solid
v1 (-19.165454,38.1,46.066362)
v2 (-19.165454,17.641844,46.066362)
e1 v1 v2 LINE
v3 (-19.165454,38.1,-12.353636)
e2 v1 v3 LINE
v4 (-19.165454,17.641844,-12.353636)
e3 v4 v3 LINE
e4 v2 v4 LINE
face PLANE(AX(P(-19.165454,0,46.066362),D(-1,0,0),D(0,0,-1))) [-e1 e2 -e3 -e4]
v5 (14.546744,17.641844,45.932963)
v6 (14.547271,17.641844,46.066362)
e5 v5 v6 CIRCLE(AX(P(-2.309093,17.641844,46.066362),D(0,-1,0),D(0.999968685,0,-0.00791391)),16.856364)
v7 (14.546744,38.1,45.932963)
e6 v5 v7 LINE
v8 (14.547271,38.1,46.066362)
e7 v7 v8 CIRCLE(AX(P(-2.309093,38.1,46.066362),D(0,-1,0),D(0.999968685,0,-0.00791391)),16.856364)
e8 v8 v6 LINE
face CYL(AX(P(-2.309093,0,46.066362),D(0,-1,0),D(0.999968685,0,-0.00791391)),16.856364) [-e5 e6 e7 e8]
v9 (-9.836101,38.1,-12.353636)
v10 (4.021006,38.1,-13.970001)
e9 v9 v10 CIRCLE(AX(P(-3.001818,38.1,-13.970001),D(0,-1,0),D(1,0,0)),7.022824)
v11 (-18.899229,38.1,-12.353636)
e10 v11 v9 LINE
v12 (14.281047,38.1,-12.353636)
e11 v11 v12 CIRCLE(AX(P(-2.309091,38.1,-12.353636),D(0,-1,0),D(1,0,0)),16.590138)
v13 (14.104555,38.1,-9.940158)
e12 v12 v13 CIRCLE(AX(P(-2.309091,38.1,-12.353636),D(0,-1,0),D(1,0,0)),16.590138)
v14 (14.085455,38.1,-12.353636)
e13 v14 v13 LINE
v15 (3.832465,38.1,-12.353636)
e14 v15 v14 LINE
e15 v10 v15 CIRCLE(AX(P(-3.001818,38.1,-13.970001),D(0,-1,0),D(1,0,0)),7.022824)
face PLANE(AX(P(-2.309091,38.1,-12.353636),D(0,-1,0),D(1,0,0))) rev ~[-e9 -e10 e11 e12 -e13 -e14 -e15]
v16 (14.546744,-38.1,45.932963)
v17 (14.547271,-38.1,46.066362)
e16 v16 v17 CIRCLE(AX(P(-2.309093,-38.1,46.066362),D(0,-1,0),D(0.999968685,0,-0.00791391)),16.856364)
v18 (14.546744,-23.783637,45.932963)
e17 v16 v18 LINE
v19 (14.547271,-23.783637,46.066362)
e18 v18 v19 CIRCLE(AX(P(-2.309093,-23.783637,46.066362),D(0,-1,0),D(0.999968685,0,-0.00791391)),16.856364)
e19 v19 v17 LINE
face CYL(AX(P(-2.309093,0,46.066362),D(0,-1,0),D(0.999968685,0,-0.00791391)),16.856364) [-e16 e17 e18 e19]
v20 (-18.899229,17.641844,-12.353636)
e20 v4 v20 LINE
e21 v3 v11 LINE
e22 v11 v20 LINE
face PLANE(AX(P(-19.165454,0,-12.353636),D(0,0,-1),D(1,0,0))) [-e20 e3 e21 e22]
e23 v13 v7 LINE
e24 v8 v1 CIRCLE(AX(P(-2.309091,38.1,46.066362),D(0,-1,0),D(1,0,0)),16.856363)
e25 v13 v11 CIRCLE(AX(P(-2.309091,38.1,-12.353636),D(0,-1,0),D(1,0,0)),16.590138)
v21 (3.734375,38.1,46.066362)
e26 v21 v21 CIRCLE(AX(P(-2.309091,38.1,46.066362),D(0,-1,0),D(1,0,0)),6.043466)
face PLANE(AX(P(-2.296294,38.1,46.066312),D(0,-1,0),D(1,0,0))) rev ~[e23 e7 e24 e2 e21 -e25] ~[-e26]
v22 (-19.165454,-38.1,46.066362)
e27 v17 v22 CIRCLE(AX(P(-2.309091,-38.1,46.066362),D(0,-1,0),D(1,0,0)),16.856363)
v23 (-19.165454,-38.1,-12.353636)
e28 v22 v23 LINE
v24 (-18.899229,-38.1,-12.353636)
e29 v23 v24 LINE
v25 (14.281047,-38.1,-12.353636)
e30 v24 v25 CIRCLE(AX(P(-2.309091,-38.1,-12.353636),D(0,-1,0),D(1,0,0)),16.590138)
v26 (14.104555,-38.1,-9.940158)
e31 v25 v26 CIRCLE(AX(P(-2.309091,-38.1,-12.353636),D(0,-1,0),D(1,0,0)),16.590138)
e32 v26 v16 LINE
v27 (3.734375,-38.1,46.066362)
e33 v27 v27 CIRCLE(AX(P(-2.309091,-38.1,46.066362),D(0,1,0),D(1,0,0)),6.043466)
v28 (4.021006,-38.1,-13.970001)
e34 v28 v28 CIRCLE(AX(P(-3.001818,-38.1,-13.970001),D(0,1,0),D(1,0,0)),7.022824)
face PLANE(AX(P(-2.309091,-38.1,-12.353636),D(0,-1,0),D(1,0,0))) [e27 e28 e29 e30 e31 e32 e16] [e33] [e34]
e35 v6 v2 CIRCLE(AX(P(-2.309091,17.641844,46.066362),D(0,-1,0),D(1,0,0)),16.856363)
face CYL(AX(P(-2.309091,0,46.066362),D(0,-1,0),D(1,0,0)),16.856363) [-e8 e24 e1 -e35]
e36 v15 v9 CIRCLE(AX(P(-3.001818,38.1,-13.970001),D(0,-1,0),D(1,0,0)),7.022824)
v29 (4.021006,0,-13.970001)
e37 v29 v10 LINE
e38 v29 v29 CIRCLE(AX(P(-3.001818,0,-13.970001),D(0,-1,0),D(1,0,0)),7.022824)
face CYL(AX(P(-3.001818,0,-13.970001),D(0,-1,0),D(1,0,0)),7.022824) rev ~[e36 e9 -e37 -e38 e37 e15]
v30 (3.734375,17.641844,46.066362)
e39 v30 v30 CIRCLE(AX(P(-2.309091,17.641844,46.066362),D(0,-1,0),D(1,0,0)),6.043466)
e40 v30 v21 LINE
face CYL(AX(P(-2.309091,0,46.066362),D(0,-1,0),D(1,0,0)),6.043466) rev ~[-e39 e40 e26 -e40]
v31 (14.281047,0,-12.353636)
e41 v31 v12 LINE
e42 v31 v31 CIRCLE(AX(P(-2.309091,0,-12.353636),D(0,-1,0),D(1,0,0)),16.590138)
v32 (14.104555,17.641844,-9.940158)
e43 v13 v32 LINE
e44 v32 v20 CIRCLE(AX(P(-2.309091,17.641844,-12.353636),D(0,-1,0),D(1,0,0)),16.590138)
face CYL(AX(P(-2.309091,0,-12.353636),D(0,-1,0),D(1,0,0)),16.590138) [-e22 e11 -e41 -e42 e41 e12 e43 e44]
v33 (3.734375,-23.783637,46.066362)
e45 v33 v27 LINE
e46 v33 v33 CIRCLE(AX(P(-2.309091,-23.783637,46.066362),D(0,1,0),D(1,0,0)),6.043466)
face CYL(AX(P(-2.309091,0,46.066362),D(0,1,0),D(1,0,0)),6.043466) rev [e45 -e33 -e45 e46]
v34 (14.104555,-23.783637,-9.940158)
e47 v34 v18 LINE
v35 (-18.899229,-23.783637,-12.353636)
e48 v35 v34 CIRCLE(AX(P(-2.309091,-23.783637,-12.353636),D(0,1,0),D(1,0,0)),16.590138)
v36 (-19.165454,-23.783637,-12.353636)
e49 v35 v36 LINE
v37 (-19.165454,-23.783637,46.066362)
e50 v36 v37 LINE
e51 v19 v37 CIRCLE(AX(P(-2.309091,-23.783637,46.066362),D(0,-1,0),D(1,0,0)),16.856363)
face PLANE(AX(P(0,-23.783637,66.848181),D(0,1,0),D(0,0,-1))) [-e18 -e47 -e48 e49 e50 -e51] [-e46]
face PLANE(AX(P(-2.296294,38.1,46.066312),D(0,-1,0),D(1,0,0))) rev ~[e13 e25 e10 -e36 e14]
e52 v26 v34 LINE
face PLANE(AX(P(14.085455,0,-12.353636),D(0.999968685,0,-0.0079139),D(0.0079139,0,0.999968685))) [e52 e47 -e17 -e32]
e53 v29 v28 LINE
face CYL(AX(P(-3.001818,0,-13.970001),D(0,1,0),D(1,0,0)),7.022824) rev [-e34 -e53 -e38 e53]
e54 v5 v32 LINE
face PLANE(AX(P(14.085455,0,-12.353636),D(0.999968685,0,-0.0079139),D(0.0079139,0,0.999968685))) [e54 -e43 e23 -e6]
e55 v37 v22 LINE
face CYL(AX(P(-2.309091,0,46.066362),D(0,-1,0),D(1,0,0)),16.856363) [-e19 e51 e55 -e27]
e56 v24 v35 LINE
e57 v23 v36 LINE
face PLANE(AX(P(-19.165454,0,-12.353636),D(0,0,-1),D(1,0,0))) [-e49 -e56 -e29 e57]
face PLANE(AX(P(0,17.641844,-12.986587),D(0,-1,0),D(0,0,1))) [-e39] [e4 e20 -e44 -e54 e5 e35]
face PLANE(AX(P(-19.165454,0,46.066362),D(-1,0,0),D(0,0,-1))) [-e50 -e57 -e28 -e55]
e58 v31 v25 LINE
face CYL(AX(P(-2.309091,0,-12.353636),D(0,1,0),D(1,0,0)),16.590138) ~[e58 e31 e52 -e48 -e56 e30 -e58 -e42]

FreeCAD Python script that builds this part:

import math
import FreeCAD as App
import Part
import Sketcher
Q = App.Units.Quantity

doc = App.newDocument("Part")
body = doc.addObject("PartDesign::Body", "Body")
body.AllowCompound = True

sketch1 = body.newObject("Sketcher::SketchObject", "Sketch")
sketch1.AttachmentSupport = (doc.getObject("XZ_Plane"), [""])
sketch1.MapMode = "FlatFace"
sketch1.addGeometry([
    Part.ArcOfCircle(Part.Circle(App.Vector(-2.31, 46.07, 0), App.Vector(0, 0, 1), 16.86), math.radians(-0.45), math.radians(0)),
    Part.ArcOfCircle(Part.Circle(App.Vector(-2.31, 46.07, 0), App.Vector(0, 0, 1), 16.86), math.radians(0), math.radians(180)),
    Part.LineSegment(App.Vector(-19.17, 46.07, 0), App.Vector(-19.17, -12.35, 0)),
    Part.LineSegment(App.Vector(-19.17, -12.35, 0), App.Vector(14.09, -12.35, 0)),
    Part.LineSegment(App.Vector(14.09, -12.35, 0), App.Vector(14.55, 45.93, 0)),
], False)
sketch1.addConstraint([
    Sketcher.Constraint("Tangent", 0, 2, 1, 1),
    Sketcher.Constraint("Tangent", 1, 2, 2, 1),
    Sketcher.Constraint("Coincident", 2, 2, 3, 1),
    Sketcher.Constraint("Coincident", 3, 2, 4, 1),
    Sketcher.Constraint("Tangent", 4, 2, 0, 1),
    Sketcher.Constraint("Vertical", 2),
    Sketcher.Constraint("Horizontal", 3),
    Sketcher.Constraint("Equal", 0, 1),
    Sketcher.Constraint("Horizontal", 1, 3, 0, 2),
    Sketcher.Constraint("DistanceY", 2, 2, 2, 1, Q("2.3 in")),
    Sketcher.Constraint("Radius", 0, Q("16.856364 mm")),
    Sketcher.Constraint("DistanceX", 3, 1, 3, 2, Q("33.250909 mm")),
    Sketcher.Constraint("DistanceX", 1, 3, -1, 1, Q("2.309091 mm")),
    Sketcher.Constraint("DistanceY", -1, 1, 0, 3, Q("46.066362 mm")),
])
pad1 = body.newObject("PartDesign::Pad", "Pad")
pad1.Profile = sketch1
pad1.Type = "TwoLengths"
pad1.Length = Q("1.5 in")
pad1.Length2 = Q("1.5 in")

sketch2 = body.newObject("Sketcher::SketchObject", "Sketch001")
sketch2.AttachmentSupport = (doc.getObject("YZ_Plane"), [""])
sketch2.MapMode = "FlatFace"
sketch2.addGeometry([
    Part.LineSegment(App.Vector(18, 67, 0), App.Vector(-24, 67, 0)),
    Part.LineSegment(App.Vector(-24, 67, 0), App.Vector(-24, -13, 0)),
    Part.LineSegment(App.Vector(-24, -13, 0), App.Vector(18, -13, 0)),
    Part.LineSegment(App.Vector(18, -13, 0), App.Vector(18, 67, 0)),
], False)
sketch2.addConstraint([
    Sketcher.Constraint("Coincident", 0, 2, 1, 1),
    Sketcher.Constraint("Coincident", 1, 2, 2, 1),
    Sketcher.Constraint("Coincident", 2, 2, 3, 1),
    Sketcher.Constraint("Coincident", 3, 2, 0, 1),
    Sketcher.Constraint("Vertical", 1),
    Sketcher.Constraint("Horizontal", 2),
    Sketcher.Constraint("Vertical", 3),
    Sketcher.Constraint("DistanceX", 2, 1, 2, 2, Q("41.425481 mm")),
    Sketcher.Constraint("DistanceY", 1, 2, 1, 1, Q("79.834769 mm")),
    Sketcher.Constraint("DistanceY", 3, 1, 3, 2, Q("80.034891 mm")),
    Sketcher.Constraint("DistanceY", -1, 1, 0, 2, Q("66.848181 mm")),
    Sketcher.Constraint("DistanceX", 0, 2, -1, 1, Q("23.783637 mm")),
])
pocket1 = body.newObject("PartDesign::Pocket", "Pocket")
pocket1.Profile = sketch2
pocket1.Type = "ThroughAll"
pocket1.Midplane = True

sketch3 = body.newObject("Sketcher::SketchObject", "Sketch002")
sketch3.AttachmentSupport = (doc.getObject("XZ_Plane"), [""])
sketch3.MapMode = "FlatFace"
sketch3.addGeometry(Part.Circle(App.Vector(-2, -12, 0), App.Vector(0, 0, 1), 17), False)
sketch3.addConstraint([
    Sketcher.Constraint("Diameter", 0, Q("33.180276 mm")),
    Sketcher.Constraint("DistanceX", 0, 3, -1, 1, Q("2.309091 mm")),
    Sketcher.Constraint("DistanceY", 0, 3, -1, 1, Q("12.353636 mm")),
])
pad2 = body.newObject("PartDesign::Pad", "Pad001")
pad2.Profile = sketch3
pad2.Type = "TwoLengths"
pad2.Length = Q("1.5 in")
pad2.Length2 = Q("1.5 in")

sketch4 = body.newObject("Sketcher::SketchObject", "Sketch003")
sketch4.AttachmentSupport = (doc.getObject("XZ_Plane"), [""])
sketch4.MapMode = "FlatFace"
sketch4.addGeometry([
    Part.Circle(App.Vector(-2, 46, 0), App.Vector(0, 0, 1), 6),
    Part.Circle(App.Vector(-3, -14, 0), App.Vector(0, 0, 1), 7),
], False)
sketch4.addConstraint([
    Sketcher.Constraint("DistanceY", 1, 3, -1, 1, Q("0.55 in")),
    Sketcher.Constraint("Diameter", 0, Q("12.086932 mm")),
    Sketcher.Constraint("Diameter", 1, Q("14.045648 mm")),
    Sketcher.Constraint("DistanceX", 0, 3, -1, 1, Q("2.309091 mm")),
    Sketcher.Constraint("DistanceX", 1, 3, -1, 1, Q("3.001818 mm")),
    Sketcher.Constraint("DistanceY", -1, 1, 0, 3, Q("46.066362 mm")),
])
pocket2 = body.newObject("PartDesign::Pocket", "Pocket001")
pocket2.Profile = sketch4
pocket2.Type = "ThroughAll"
pocket2.Midplane = True

doc.recompute()
